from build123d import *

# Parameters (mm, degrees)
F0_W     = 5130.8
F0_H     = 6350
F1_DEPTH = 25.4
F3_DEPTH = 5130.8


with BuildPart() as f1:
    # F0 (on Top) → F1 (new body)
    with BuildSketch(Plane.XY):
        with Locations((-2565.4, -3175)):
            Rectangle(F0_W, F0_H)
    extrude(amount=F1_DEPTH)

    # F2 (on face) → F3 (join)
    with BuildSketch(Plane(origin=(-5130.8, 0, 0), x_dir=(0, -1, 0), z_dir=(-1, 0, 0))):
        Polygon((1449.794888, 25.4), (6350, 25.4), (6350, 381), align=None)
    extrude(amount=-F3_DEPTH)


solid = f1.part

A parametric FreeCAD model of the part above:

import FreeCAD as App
import Part
import Sketcher

V = App.Vector
Q = App.Units.Quantity


def add_polygon(sketch, points):
    """Adds a closed chain of lines whose ends are joined by coincident constraints."""
    first, n = sketch.GeometryCount, len(points)
    for a, b in zip(points, points[1:] + points[:1]):
        sketch.addGeometry(Part.LineSegment(App.Vector(*a, 0), App.Vector(*b, 0)), False)
    for i in range(n):
        sketch.addConstraint(Sketcher.Constraint("Coincident", first + i, 2, first + (i + 1) % n, 1))

doc = App.newDocument("Part")
body = doc.addObject("PartDesign::Body", "Body")

# Sketch on XY plane
sketch1 = body.newObject("Sketcher::SketchObject", "Sketch")
sketch1.AttachmentSupport = (doc.getObject("XY_Plane"), [""])
sketch1.MapMode = "FlatFace"
add_polygon(sketch1, [(-5131, 0), (-5131, -6350), (0, -6350), (0, 0)])  # lines 0-3
sketch1.addConstraint([
    Sketcher.Constraint("Vertical", 0),
    Sketcher.Constraint("Horizontal", 1),
    Sketcher.Constraint("Vertical", 2),
    Sketcher.Constraint("Horizontal", 3),
    Sketcher.Constraint("Coincident", 2, 2, -1, 1),
    Sketcher.Constraint("DistanceX", 1, 1, 1, 2, Q("202 in")),
    Sketcher.Constraint("DistanceY", 0, 2, 0, 1, Q("250 in")),
])
pad1 = body.newObject("PartDesign::Pad", "Pad")
pad1.Profile = sketch1
pad1.Length = Q("1 in")

# Sketch on YZ plane
sketch2 = body.newObject("Sketcher::SketchObject", "Sketch001")
sketch2.AttachmentSupport = (doc.getObject("YZ_Plane"), [""])
sketch2.MapMode = "FlatFace"
sketch2.AttachmentOffset = App.Placement(V(0, 0, -202 * 25.4), App.Rotation())
add_polygon(sketch2, [(-1450, 25), (-6350, 25), (-6350, 381)])  # lines 0-2
sketch2.addConstraint([
    Sketcher.Constraint("Horizontal", 0),
    Sketcher.Constraint("Vertical", 1),
    Sketcher.Constraint("DistanceY", 1, 1, 1, 2, Q("14 in")),
    Sketcher.Constraint("DistanceX", 0, 2, -1, 1, Q("250 in")),
    Sketcher.Constraint("DistanceY", -1, 1, 0, 2, Q("1 in")),
    Sketcher.Constraint("DistanceX", 0, 2, 0, 1, 4900.205112),
])
pad2 = body.newObject("PartDesign::Pad", "Pad001")
pad2.Profile = sketch2
pad2.Length = Q("202 in")

doc.recompute()
